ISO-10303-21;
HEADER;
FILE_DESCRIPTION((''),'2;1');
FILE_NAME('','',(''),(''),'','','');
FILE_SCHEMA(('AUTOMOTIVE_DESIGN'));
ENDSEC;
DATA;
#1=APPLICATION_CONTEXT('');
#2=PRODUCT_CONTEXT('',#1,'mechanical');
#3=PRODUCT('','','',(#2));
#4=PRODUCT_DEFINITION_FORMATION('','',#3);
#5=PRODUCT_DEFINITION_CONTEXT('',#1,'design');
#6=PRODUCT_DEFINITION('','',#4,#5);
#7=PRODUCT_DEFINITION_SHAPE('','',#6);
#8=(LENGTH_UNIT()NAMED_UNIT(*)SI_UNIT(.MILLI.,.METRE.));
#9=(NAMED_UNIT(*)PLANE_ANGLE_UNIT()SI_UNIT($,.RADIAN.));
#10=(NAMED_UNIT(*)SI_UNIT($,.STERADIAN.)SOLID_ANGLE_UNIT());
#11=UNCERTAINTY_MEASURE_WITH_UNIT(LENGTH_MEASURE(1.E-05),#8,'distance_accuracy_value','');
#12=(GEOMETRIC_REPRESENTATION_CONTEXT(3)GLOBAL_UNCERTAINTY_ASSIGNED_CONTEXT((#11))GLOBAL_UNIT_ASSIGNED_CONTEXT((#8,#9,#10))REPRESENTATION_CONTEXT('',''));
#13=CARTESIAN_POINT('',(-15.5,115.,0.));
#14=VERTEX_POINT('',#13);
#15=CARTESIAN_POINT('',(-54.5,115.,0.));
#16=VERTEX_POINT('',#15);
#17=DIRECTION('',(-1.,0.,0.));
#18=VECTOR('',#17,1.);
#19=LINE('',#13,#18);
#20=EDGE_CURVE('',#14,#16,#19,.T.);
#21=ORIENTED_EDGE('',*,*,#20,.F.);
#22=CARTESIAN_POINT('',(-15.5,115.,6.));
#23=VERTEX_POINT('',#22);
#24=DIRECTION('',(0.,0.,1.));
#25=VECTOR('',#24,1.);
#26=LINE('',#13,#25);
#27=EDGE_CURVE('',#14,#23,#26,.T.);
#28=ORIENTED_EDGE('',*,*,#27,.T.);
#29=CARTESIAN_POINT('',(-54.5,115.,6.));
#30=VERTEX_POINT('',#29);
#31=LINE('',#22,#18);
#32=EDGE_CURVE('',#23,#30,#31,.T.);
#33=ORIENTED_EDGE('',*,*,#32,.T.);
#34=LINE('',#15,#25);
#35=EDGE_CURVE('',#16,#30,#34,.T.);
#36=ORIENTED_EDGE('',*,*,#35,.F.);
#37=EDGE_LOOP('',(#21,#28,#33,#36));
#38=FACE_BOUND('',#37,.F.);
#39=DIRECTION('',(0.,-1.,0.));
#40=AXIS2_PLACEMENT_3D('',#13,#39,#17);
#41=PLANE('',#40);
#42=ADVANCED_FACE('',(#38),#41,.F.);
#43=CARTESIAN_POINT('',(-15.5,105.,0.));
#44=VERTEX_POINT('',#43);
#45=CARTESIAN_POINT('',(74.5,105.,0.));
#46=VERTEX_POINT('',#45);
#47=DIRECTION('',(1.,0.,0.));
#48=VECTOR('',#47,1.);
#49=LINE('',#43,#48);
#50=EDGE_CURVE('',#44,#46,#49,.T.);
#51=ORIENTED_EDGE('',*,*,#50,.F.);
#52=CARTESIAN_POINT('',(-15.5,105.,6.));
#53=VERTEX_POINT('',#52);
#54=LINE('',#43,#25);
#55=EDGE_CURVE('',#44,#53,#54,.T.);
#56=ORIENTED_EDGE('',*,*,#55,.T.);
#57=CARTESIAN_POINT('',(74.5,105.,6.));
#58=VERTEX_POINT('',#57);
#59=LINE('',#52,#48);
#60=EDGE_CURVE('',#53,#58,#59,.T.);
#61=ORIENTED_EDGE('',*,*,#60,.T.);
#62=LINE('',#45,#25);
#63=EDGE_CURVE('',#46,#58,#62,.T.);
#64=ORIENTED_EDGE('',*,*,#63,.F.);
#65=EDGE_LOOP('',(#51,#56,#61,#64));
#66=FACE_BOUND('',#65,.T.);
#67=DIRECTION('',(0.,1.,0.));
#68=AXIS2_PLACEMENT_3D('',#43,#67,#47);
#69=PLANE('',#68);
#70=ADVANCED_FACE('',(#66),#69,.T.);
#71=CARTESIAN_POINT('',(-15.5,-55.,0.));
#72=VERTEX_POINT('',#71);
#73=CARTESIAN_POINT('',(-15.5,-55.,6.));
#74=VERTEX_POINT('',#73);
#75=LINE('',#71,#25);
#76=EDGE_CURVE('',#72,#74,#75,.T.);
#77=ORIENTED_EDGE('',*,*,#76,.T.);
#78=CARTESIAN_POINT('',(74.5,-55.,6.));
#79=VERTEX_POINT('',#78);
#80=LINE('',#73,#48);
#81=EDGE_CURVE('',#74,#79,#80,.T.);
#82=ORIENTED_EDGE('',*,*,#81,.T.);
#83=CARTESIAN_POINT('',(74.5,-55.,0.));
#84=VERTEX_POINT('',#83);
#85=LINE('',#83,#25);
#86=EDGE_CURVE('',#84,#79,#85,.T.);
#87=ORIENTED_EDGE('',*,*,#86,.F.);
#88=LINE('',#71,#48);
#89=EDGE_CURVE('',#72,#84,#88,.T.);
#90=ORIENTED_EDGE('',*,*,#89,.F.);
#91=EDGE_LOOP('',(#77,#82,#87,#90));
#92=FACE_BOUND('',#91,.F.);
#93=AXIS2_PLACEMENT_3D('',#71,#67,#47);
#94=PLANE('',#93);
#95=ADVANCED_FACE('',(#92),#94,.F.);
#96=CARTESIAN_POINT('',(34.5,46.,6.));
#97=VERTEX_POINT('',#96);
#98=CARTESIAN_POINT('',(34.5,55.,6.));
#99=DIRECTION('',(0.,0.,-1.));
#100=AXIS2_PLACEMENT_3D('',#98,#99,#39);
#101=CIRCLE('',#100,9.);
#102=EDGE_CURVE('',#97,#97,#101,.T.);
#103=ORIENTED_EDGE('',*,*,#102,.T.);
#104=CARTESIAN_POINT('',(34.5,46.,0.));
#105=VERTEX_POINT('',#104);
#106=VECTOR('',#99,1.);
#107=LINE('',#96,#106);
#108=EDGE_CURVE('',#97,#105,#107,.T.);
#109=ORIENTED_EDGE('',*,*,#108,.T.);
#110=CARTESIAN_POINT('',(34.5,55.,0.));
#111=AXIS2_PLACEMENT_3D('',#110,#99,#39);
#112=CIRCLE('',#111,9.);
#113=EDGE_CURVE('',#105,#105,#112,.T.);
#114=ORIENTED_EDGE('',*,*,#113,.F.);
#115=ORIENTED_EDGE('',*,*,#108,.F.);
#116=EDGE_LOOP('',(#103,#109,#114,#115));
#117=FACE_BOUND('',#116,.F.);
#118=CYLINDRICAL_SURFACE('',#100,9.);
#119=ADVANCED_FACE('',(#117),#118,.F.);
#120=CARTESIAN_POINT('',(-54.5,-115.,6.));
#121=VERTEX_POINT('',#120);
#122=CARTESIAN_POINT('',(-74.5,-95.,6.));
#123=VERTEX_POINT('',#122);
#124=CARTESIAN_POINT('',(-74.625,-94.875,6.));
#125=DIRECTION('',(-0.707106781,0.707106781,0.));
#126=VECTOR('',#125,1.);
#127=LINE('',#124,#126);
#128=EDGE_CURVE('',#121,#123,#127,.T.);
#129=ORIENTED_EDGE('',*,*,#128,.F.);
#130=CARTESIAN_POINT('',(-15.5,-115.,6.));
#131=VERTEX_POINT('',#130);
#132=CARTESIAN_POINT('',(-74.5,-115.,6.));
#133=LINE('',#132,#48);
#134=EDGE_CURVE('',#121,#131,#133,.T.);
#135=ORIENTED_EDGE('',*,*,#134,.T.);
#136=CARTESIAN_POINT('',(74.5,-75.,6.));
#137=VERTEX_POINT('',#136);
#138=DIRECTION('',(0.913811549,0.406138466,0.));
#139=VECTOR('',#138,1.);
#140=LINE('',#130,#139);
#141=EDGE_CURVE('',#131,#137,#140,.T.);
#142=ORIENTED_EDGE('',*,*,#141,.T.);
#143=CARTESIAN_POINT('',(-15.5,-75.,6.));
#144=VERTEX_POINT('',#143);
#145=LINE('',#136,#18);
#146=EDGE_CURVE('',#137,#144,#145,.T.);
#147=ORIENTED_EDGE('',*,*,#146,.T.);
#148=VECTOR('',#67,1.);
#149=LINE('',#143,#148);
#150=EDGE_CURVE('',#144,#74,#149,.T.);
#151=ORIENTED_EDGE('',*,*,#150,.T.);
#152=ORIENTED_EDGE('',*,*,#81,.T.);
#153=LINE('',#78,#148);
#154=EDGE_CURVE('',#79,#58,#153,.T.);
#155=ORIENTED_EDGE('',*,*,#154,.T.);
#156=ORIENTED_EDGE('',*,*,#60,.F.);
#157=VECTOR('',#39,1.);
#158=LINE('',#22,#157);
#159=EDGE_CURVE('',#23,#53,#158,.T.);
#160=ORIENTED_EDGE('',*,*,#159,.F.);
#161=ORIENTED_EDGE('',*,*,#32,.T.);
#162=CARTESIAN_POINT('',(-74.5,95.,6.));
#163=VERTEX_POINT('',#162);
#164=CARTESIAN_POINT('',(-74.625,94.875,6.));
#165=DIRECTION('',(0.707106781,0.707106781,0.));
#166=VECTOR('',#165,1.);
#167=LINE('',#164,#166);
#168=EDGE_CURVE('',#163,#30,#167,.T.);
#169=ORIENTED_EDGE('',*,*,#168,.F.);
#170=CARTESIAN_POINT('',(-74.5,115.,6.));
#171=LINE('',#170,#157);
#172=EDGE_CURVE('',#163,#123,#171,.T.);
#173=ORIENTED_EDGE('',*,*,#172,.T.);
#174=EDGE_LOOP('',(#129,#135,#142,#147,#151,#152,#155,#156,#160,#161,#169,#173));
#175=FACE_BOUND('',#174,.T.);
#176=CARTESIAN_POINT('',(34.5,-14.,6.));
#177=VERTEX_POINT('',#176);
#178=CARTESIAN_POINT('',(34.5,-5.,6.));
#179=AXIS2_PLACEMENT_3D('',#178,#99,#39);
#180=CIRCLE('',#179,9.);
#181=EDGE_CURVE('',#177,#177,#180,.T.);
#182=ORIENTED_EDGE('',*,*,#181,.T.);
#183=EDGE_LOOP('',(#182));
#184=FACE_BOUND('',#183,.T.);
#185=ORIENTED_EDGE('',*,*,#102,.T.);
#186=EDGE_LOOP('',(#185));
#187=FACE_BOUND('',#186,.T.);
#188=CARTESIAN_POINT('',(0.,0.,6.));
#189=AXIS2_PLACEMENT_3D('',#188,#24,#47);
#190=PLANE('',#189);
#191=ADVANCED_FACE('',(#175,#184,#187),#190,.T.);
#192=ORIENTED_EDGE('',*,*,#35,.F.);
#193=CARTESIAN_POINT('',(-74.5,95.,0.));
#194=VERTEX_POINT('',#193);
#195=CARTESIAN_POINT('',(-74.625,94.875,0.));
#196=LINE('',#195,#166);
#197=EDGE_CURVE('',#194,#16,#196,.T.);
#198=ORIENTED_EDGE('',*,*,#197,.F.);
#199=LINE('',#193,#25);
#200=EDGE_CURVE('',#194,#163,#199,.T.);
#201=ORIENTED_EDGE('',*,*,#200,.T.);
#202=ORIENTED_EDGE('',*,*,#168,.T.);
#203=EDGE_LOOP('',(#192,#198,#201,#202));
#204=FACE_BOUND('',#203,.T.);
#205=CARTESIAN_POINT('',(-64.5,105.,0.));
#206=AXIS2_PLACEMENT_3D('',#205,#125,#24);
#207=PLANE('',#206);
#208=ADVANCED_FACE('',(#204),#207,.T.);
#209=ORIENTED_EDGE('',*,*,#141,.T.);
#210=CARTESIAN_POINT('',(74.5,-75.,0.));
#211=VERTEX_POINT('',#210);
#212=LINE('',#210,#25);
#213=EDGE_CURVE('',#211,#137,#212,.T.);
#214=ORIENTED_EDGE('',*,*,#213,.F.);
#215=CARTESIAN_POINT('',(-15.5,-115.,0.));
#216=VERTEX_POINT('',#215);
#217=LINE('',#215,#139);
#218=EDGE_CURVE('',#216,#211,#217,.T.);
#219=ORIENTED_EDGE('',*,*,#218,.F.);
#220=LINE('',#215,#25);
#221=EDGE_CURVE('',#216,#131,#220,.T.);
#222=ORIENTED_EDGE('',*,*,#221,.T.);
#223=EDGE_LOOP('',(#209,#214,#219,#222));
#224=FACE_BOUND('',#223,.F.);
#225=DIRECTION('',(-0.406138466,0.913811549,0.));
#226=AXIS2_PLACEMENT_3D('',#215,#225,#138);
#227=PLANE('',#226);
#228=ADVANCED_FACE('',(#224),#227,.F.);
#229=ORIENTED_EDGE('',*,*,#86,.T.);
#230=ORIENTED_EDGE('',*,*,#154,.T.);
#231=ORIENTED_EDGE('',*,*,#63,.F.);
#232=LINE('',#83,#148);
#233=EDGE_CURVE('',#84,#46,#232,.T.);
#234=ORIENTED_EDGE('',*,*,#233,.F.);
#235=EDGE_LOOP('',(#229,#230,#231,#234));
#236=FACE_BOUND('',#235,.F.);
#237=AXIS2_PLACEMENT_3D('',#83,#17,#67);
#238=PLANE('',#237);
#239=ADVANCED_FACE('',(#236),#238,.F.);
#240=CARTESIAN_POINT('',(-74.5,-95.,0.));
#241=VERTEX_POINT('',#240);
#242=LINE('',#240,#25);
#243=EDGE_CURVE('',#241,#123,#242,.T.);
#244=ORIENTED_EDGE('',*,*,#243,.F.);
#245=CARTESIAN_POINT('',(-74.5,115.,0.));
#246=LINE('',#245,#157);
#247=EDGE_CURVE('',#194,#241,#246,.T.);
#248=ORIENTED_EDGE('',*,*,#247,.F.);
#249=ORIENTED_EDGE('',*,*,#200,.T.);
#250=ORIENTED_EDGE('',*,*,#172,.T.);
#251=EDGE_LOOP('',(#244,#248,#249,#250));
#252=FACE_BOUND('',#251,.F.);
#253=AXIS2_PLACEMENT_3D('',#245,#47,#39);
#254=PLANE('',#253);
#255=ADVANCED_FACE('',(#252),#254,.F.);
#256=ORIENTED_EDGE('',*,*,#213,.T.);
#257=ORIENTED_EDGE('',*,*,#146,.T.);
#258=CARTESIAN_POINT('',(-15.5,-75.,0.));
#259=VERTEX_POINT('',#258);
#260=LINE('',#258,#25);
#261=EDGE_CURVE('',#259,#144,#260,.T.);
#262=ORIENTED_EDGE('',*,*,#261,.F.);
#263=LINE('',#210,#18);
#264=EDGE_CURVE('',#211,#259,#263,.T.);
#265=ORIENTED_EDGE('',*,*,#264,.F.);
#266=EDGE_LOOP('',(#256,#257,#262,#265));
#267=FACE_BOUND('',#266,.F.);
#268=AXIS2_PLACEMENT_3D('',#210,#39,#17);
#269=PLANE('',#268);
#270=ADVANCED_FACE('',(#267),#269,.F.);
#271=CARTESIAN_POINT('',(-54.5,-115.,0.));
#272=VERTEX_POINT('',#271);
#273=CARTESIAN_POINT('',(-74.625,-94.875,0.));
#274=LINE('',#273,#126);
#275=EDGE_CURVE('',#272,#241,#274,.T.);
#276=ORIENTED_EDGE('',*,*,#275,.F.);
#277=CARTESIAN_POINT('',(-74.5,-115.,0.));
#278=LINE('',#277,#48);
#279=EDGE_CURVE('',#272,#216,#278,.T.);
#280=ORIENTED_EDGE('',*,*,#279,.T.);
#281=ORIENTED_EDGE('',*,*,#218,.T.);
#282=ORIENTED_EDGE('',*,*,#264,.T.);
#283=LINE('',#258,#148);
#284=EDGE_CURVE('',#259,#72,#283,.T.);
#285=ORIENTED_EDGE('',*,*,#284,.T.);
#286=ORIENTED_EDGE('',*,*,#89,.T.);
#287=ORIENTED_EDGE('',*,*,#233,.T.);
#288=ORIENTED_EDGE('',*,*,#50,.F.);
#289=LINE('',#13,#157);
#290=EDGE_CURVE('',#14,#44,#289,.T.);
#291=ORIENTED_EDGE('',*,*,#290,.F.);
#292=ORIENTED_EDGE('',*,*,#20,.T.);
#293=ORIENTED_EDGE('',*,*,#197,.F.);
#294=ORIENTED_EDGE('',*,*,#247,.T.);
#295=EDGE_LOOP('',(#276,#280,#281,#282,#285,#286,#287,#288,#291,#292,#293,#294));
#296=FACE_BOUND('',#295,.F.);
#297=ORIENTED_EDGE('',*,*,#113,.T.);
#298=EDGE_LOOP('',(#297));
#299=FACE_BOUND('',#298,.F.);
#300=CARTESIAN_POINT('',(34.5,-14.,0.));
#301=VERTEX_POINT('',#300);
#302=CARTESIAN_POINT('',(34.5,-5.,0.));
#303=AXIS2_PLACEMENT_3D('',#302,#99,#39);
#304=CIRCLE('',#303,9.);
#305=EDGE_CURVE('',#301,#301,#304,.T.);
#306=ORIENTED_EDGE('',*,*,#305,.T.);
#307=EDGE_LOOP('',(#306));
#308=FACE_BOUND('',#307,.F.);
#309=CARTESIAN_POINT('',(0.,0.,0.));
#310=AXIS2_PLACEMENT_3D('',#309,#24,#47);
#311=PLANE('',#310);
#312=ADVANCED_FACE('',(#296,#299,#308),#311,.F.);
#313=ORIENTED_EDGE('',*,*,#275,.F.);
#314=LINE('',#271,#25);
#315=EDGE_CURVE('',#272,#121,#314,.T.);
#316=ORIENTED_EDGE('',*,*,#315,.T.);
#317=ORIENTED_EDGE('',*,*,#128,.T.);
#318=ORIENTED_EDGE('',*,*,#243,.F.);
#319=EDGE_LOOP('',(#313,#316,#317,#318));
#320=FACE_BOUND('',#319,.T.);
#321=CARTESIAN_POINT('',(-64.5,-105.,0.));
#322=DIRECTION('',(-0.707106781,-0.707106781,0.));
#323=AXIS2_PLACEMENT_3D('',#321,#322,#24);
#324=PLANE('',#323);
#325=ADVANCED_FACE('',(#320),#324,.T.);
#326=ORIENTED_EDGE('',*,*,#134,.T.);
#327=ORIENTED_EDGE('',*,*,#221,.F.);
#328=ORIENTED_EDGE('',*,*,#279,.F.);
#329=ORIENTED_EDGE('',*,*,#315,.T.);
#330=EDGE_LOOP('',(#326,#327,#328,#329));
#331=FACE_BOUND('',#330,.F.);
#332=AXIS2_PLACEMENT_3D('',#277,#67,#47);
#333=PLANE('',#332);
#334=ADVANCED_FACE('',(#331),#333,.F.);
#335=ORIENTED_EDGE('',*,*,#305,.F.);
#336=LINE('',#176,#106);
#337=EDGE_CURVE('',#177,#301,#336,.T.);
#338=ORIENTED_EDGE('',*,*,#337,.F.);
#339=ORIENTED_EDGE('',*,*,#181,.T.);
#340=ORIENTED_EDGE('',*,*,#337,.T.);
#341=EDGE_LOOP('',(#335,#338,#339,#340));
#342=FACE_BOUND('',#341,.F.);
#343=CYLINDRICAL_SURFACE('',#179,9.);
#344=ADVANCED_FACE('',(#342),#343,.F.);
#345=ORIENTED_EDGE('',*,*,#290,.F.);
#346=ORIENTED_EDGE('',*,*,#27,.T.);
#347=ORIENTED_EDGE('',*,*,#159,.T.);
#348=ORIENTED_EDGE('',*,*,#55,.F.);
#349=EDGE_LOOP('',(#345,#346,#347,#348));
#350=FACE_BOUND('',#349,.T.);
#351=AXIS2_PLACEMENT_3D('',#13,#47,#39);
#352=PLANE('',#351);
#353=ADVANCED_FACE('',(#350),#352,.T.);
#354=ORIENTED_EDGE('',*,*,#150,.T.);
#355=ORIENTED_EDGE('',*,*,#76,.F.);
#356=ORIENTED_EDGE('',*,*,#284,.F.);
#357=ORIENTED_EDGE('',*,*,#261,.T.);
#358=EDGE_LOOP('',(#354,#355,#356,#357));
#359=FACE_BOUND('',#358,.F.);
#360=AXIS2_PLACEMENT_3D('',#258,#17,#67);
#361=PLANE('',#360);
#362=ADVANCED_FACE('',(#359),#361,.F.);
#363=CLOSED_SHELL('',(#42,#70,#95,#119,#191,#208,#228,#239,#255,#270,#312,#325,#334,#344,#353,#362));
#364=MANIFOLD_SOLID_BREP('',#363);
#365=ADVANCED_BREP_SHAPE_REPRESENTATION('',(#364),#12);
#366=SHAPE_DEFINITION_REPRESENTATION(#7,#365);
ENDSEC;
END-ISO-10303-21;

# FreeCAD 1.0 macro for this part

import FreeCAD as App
import Part
import Sketcher
from FreeCAD import Vector


def edges_at(feature, points):
    """Names of the edges that pass closest to the given points."""
    edges = feature.Shape.Edges
    near = lambda p: min(range(len(edges)), key=lambda i: edges[i].distToShape(Part.Vertex(*p))[0])
    return sorted({f"Edge{near(p) + 1}" for p in points})

doc = App.newDocument("Part")
body = doc.addObject("PartDesign::Body", "Body")

# Sketch on XY plane
sketch1 = doc.addObject("Sketcher::SketchObject", "Sketch")
body.addObject(sketch1)
sketch1.AttachmentSupport = (doc.XY_Plane, [""])
sketch1.MapMode = "FlatFace"
sketch1.addGeometry(Part.LineSegment(Vector(-15.5, 105, 0), Vector(-15.5, 115, 0)), False)
sketch1.addGeometry(Part.LineSegment(Vector(-15.5, 115, 0), Vector(-74.5, 115, 0)), False)
sketch1.addGeometry(Part.LineSegment(Vector(-74.5, 115, 0), Vector(-74.5, -115, 0)), False)
sketch1.addGeometry(Part.LineSegment(Vector(-74.5, -115, 0), Vector(-15.5, -115, 0)), False)
sketch1.addGeometry(Part.LineSegment(Vector(-15.5, -115, 0), Vector(74.5, -75, 0)), False)
sketch1.addGeometry(Part.LineSegment(Vector(74.5, -75, 0), Vector(-15.5, -75, 0)), False)
sketch1.addGeometry(Part.LineSegment(Vector(-15.5, -75, 0), Vector(-15.5, -55, 0)), False)
sketch1.addGeometry(Part.LineSegment(Vector(-15.5, -55, 0), Vector(74.5, -55, 0)), False)
sketch1.addGeometry(Part.LineSegment(Vector(74.5, -55, 0), Vector(74.5, 105, 0)), False)
sketch1.addGeometry(Part.LineSegment(Vector(74.5, 105, 0), Vector(-15.5, 105, 0)), False)
sketch1.addConstraint(Sketcher.Constraint("Coincident", 0, 2, 1, 1))
sketch1.addConstraint(Sketcher.Constraint("Coincident", 1, 2, 2, 1))
sketch1.addConstraint(Sketcher.Constraint("Coincident", 2, 2, 3, 1))
sketch1.addConstraint(Sketcher.Constraint("Coincident", 3, 2, 4, 1))
sketch1.addConstraint(Sketcher.Constraint("Coincident", 4, 2, 5, 1))
sketch1.addConstraint(Sketcher.Constraint("Coincident", 5, 2, 6, 1))
sketch1.addConstraint(Sketcher.Constraint("Coincident", 6, 2, 7, 1))
sketch1.addConstraint(Sketcher.Constraint("Coincident", 7, 2, 8, 1))
sketch1.addConstraint(Sketcher.Constraint("Coincident", 8, 2, 9, 1))
sketch1.addConstraint(Sketcher.Constraint("Coincident", 9, 2, 0, 1))
sketch1.addConstraint(Sketcher.Constraint("Vertical", 0))
sketch1.addConstraint(Sketcher.Constraint("Horizontal", 1))
sketch1.addConstraint(Sketcher.Constraint("Vertical", 2))
sketch1.addConstraint(Sketcher.Constraint("Horizontal", 3))
sketch1.addConstraint(Sketcher.Constraint("Horizontal", 5))
sketch1.addConstraint(Sketcher.Constraint("Vertical", 6))
sketch1.addConstraint(Sketcher.Constraint("Horizontal", 7))
sketch1.addConstraint(Sketcher.Constraint("Vertical", 8))
sketch1.addConstraint(Sketcher.Constraint("Horizontal", 9))
sketch1.addConstraint(Sketcher.Constraint("Symmetric", 0, 2, 3, 2, -1))
sketch1.addConstraint(Sketcher.Constraint("Vertical", 3, 2, 5, 2))
sketch1.addConstraint(Sketcher.Constraint("Vertical", 4, 2, 7, 2))
sketch1.addConstraint(Sketcher.Constraint("DistanceX", 1, 2, 1, 1, 59.0))
sketch1.addConstraint(Sketcher.Constraint("DistanceX", 5, 2, 5, 1, 90.0))
sketch1.addConstraint(Sketcher.Constraint("DistanceY", 2, 2, 2, 1, 230.0))
sketch1.addConstraint(Sketcher.Constraint("DistanceY", 6, 1, 6, 2, 20.0))
sketch1.addConstraint(Sketcher.Constraint("DistanceY", 0, 1, 0, 2, 10.0))
sketch1.addConstraint(Sketcher.Constraint("DistanceY", 8, 1, 8, 2, 160.0))
sketch1.addConstraint(Sketcher.Constraint("DistanceX", 0, 2, -1, 1, 15.5))
pad1 = doc.addObject("PartDesign::Pad", "Pad")
body.addObject(pad1)
pad1.Profile = sketch1
pad1.Length = 6
doc.recompute()

chamfer = doc.addObject("PartDesign::Chamfer", "Chamfer")
body.addObject(chamfer)
chamfer.Base = (pad1, edges_at(pad1, [(-74.5, -115, 3), (-74.5, 115, 3)]))
chamfer.Size = 20

# Sketch on XY plane
sketch2 = doc.addObject("Sketcher::SketchObject", "Sketch001")
body.addObject(sketch2)
sketch2.AttachmentSupport = (doc.XY_Plane, [""])
sketch2.MapMode = "FlatFace"
sketch2.AttachmentOffset = App.Placement(Vector(0, 0, 6), App.Rotation())
sketch2.addGeometry(Part.Circle(Vector(34.5, 55, 0), Vector(0, 0, 1), 9), False)
sketch2.addGeometry(Part.Circle(Vector(34.5, -5, 0), Vector(0, 0, 1), 9), False)
sketch2.addConstraint(Sketcher.Constraint("Equal", 0, 1))
sketch2.addConstraint(Sketcher.Constraint("Vertical", 0, 3, 1, 3))
sketch2.addConstraint(Sketcher.Constraint("Diameter", 0, 18.0))
sketch2.addConstraint(Sketcher.Constraint("DistanceY", -1, 1, 0, 3, 55.0))
sketch2.addConstraint(Sketcher.Constraint("DistanceY", 1, 3, -1, 1, 5.0))
sketch2.addConstraint(Sketcher.Constraint("DistanceX", -1, 1, 0, 3, 34.5))
doc.recompute()
hole = doc.addObject("PartDesign::Hole", "Hole")
body.addObject(hole)
hole.Profile = sketch2
hole.ThreadType = "None"
hole.Diameter = 18
hole.DepthType = "ThroughAll"

doc.recompute()
